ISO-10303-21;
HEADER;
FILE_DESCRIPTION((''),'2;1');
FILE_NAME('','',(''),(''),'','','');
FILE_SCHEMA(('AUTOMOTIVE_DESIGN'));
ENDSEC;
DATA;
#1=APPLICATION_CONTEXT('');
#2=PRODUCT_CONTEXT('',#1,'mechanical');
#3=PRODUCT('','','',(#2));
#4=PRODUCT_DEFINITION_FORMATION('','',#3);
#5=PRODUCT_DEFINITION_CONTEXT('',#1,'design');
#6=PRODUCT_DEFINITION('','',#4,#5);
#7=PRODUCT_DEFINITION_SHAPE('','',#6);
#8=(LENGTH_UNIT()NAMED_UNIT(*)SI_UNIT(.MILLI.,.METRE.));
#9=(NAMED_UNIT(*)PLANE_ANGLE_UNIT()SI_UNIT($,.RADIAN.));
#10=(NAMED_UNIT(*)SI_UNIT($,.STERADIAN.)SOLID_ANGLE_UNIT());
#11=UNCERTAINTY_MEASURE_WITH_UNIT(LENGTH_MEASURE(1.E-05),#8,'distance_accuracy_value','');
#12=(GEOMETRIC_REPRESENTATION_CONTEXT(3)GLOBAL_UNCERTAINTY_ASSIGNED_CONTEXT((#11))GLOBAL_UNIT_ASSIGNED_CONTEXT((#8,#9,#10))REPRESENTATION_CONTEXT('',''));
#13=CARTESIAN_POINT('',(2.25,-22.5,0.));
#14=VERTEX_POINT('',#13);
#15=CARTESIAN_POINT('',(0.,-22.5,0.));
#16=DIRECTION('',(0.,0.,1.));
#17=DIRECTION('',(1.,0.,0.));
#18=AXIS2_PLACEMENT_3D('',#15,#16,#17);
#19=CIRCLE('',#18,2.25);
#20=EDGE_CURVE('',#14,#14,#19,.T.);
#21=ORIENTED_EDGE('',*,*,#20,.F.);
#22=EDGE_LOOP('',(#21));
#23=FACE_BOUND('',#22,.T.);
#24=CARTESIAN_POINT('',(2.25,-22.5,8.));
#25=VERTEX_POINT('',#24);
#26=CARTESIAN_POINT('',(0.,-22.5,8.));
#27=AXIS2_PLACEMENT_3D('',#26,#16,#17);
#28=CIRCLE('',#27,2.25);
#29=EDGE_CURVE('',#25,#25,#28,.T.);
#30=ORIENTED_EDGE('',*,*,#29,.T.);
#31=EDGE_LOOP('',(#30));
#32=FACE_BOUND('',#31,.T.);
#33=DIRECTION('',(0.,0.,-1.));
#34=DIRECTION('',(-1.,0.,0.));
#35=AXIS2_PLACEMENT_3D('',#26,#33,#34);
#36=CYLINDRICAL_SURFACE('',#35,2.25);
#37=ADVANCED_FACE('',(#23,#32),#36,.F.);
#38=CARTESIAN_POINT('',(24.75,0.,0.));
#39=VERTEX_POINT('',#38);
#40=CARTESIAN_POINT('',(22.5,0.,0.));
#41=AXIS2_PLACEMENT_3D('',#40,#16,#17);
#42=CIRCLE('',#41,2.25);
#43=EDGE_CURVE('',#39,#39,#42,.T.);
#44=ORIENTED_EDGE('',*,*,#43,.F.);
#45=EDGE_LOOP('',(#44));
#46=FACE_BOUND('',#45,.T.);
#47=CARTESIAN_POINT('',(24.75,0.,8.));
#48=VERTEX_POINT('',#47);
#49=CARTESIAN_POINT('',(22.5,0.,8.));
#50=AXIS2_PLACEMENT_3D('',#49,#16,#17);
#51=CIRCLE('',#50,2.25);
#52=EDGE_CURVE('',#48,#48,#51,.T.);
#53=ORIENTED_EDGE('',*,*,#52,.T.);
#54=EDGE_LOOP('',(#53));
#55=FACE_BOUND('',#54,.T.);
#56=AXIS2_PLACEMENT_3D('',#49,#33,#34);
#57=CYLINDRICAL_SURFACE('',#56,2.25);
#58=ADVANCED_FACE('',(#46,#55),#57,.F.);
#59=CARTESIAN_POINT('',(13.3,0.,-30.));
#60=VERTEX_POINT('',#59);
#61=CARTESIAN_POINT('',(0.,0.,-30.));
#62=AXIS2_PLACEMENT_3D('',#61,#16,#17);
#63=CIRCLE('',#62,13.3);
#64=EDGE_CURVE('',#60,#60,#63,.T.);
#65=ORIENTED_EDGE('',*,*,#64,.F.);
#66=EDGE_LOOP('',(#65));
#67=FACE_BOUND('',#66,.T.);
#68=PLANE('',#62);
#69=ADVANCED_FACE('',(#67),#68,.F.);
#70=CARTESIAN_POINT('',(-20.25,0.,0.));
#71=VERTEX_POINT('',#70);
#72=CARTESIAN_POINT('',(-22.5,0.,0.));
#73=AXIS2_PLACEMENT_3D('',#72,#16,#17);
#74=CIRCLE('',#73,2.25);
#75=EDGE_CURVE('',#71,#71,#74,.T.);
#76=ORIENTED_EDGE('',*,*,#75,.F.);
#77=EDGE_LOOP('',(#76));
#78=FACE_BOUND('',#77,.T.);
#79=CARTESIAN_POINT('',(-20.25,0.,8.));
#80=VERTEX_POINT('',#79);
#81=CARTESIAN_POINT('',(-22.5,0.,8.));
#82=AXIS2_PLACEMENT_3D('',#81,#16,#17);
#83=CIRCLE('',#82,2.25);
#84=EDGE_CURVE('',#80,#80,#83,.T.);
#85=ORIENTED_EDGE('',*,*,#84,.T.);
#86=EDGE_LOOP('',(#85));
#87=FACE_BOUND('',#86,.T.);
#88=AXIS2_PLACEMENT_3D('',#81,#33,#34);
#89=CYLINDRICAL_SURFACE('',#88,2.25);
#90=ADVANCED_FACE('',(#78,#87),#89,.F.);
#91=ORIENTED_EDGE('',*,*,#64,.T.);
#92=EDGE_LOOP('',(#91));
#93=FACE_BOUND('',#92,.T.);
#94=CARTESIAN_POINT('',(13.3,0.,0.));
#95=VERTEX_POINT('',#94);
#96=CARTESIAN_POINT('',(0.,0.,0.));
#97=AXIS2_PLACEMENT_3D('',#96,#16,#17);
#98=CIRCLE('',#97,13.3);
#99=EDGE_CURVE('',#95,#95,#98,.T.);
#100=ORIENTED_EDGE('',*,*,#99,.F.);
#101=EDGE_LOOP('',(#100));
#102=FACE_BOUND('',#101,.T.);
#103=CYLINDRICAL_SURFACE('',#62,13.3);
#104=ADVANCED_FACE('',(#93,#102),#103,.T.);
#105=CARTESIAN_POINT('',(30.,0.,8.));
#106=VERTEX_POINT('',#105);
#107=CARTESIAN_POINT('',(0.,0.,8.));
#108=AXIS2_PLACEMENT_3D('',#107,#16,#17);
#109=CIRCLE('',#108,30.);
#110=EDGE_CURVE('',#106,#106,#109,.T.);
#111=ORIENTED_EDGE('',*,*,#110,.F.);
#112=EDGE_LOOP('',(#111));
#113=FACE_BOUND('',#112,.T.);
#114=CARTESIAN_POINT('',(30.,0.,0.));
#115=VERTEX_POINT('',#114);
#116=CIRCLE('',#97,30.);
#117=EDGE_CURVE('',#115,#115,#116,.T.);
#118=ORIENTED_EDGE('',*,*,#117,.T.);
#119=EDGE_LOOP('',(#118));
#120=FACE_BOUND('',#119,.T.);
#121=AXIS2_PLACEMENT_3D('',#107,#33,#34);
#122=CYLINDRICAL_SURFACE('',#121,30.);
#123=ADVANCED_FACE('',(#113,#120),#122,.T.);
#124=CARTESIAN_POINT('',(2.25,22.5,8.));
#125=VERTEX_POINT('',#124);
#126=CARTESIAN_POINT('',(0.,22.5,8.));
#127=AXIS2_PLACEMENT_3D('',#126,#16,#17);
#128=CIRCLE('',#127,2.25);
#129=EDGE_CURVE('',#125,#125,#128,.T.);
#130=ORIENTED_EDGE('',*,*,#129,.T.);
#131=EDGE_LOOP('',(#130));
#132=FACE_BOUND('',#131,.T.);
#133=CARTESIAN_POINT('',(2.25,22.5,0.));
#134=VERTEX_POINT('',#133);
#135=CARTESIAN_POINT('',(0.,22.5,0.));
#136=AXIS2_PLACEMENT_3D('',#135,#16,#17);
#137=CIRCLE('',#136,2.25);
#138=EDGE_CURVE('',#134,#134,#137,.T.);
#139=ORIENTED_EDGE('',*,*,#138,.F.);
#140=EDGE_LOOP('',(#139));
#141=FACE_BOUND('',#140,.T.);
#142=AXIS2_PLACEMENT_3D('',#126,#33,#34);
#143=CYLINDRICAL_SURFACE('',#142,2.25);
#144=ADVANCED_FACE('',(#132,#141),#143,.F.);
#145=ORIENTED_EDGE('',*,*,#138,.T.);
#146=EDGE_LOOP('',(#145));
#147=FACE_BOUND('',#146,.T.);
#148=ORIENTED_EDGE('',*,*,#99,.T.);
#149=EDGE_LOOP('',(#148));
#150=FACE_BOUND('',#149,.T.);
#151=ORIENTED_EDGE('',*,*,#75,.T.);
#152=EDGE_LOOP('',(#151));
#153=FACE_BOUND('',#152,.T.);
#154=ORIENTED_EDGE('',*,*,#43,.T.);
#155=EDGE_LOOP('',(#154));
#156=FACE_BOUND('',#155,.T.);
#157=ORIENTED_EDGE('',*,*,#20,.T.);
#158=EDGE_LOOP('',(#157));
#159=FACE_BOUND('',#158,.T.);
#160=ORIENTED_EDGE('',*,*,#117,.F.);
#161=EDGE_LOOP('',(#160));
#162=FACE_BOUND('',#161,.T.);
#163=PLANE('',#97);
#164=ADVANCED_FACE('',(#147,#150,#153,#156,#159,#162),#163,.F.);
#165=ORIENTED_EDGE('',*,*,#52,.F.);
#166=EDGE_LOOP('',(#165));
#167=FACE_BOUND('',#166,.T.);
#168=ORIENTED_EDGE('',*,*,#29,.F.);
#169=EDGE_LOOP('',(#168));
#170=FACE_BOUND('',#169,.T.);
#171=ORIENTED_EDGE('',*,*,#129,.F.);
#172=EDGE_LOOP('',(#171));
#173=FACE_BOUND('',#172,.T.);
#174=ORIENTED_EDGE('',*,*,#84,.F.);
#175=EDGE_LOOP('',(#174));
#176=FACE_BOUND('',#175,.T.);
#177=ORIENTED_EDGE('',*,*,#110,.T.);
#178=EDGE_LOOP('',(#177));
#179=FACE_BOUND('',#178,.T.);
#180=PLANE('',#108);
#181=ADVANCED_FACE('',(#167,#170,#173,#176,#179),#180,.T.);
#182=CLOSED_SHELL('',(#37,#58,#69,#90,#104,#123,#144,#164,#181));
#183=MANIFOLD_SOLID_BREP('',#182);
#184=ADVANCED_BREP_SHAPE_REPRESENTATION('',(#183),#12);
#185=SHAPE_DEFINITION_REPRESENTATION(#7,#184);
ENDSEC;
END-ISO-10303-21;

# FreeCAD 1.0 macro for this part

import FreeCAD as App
import Part
import Sketcher

V = App.Vector

doc = App.newDocument("Part")
body = doc.addObject("PartDesign::Body", "Body")

sketch1 = body.newObject("Sketcher::SketchObject", "Sketch")
sketch1.AttachmentSupport = (doc.getObject("XY_Plane"), [""])
sketch1.MapMode = "FlatFace"
sketch1.addGeometry(Part.Circle(V(0, 0, 0), V(0, 0, 1), 13), False)
sketch1.addConstraint([
    Sketcher.Constraint("Coincident", 0, 3, -1, 1),
    Sketcher.Constraint("Diameter", 0, 26.6),
])
pad1 = body.newObject("PartDesign::Pad", "Pad")
pad1.Profile = sketch1
pad1.Length = 30
pad1.Reversed = True

sketch2 = body.newObject("Sketcher::SketchObject", "Sketch001")
sketch2.AttachmentSupport = (doc.getObject("XY_Plane"), [""])
sketch2.MapMode = "FlatFace"
sketch2.addGeometry([
    Part.Circle(V(0, 0, 0), V(0, 0, 1), 30),
    Part.Circle(V(0, -22.5, 0), V(0, 0, 1), 2.2),
    Part.Circle(V(-22.5, 0, 0), V(0, 0, 1), 2.2),
    Part.Circle(V(22.5, 0, 0), V(0, 0, 1), 2.2),
    Part.Circle(V(0, 22.5, 0), V(0, 0, 1), 2.2),
], False)
sketch2.addConstraint([
    Sketcher.Constraint("Coincident", 0, 3, -1, 1),
    Sketcher.Constraint("Equal", 1, 2),
    Sketcher.Constraint("Equal", 2, 3),
    Sketcher.Constraint("Equal", 3, 4),
    Sketcher.Constraint("Symmetric", 2, 3, 3, 3, -1, 1),
    Sketcher.Constraint("Symmetric", 1, 3, 4, 3, -1, 1),
    Sketcher.Constraint("PointOnObject", 1, 3, -2),
    Sketcher.Constraint("PointOnObject", 2, 3, -1),
    Sketcher.Constraint("Diameter", 0, 60.0),
    Sketcher.Constraint("Diameter", 1, 4.5),
    Sketcher.Constraint("DistanceX", 2, 3, 3, 3, 45.0),
    Sketcher.Constraint("DistanceY", 1, 3, 4, 3, 45.0),
])
pad2 = body.newObject("PartDesign::Pad", "Pad001")
pad2.Profile = sketch2
pad2.Length = 8

doc.recompute()
